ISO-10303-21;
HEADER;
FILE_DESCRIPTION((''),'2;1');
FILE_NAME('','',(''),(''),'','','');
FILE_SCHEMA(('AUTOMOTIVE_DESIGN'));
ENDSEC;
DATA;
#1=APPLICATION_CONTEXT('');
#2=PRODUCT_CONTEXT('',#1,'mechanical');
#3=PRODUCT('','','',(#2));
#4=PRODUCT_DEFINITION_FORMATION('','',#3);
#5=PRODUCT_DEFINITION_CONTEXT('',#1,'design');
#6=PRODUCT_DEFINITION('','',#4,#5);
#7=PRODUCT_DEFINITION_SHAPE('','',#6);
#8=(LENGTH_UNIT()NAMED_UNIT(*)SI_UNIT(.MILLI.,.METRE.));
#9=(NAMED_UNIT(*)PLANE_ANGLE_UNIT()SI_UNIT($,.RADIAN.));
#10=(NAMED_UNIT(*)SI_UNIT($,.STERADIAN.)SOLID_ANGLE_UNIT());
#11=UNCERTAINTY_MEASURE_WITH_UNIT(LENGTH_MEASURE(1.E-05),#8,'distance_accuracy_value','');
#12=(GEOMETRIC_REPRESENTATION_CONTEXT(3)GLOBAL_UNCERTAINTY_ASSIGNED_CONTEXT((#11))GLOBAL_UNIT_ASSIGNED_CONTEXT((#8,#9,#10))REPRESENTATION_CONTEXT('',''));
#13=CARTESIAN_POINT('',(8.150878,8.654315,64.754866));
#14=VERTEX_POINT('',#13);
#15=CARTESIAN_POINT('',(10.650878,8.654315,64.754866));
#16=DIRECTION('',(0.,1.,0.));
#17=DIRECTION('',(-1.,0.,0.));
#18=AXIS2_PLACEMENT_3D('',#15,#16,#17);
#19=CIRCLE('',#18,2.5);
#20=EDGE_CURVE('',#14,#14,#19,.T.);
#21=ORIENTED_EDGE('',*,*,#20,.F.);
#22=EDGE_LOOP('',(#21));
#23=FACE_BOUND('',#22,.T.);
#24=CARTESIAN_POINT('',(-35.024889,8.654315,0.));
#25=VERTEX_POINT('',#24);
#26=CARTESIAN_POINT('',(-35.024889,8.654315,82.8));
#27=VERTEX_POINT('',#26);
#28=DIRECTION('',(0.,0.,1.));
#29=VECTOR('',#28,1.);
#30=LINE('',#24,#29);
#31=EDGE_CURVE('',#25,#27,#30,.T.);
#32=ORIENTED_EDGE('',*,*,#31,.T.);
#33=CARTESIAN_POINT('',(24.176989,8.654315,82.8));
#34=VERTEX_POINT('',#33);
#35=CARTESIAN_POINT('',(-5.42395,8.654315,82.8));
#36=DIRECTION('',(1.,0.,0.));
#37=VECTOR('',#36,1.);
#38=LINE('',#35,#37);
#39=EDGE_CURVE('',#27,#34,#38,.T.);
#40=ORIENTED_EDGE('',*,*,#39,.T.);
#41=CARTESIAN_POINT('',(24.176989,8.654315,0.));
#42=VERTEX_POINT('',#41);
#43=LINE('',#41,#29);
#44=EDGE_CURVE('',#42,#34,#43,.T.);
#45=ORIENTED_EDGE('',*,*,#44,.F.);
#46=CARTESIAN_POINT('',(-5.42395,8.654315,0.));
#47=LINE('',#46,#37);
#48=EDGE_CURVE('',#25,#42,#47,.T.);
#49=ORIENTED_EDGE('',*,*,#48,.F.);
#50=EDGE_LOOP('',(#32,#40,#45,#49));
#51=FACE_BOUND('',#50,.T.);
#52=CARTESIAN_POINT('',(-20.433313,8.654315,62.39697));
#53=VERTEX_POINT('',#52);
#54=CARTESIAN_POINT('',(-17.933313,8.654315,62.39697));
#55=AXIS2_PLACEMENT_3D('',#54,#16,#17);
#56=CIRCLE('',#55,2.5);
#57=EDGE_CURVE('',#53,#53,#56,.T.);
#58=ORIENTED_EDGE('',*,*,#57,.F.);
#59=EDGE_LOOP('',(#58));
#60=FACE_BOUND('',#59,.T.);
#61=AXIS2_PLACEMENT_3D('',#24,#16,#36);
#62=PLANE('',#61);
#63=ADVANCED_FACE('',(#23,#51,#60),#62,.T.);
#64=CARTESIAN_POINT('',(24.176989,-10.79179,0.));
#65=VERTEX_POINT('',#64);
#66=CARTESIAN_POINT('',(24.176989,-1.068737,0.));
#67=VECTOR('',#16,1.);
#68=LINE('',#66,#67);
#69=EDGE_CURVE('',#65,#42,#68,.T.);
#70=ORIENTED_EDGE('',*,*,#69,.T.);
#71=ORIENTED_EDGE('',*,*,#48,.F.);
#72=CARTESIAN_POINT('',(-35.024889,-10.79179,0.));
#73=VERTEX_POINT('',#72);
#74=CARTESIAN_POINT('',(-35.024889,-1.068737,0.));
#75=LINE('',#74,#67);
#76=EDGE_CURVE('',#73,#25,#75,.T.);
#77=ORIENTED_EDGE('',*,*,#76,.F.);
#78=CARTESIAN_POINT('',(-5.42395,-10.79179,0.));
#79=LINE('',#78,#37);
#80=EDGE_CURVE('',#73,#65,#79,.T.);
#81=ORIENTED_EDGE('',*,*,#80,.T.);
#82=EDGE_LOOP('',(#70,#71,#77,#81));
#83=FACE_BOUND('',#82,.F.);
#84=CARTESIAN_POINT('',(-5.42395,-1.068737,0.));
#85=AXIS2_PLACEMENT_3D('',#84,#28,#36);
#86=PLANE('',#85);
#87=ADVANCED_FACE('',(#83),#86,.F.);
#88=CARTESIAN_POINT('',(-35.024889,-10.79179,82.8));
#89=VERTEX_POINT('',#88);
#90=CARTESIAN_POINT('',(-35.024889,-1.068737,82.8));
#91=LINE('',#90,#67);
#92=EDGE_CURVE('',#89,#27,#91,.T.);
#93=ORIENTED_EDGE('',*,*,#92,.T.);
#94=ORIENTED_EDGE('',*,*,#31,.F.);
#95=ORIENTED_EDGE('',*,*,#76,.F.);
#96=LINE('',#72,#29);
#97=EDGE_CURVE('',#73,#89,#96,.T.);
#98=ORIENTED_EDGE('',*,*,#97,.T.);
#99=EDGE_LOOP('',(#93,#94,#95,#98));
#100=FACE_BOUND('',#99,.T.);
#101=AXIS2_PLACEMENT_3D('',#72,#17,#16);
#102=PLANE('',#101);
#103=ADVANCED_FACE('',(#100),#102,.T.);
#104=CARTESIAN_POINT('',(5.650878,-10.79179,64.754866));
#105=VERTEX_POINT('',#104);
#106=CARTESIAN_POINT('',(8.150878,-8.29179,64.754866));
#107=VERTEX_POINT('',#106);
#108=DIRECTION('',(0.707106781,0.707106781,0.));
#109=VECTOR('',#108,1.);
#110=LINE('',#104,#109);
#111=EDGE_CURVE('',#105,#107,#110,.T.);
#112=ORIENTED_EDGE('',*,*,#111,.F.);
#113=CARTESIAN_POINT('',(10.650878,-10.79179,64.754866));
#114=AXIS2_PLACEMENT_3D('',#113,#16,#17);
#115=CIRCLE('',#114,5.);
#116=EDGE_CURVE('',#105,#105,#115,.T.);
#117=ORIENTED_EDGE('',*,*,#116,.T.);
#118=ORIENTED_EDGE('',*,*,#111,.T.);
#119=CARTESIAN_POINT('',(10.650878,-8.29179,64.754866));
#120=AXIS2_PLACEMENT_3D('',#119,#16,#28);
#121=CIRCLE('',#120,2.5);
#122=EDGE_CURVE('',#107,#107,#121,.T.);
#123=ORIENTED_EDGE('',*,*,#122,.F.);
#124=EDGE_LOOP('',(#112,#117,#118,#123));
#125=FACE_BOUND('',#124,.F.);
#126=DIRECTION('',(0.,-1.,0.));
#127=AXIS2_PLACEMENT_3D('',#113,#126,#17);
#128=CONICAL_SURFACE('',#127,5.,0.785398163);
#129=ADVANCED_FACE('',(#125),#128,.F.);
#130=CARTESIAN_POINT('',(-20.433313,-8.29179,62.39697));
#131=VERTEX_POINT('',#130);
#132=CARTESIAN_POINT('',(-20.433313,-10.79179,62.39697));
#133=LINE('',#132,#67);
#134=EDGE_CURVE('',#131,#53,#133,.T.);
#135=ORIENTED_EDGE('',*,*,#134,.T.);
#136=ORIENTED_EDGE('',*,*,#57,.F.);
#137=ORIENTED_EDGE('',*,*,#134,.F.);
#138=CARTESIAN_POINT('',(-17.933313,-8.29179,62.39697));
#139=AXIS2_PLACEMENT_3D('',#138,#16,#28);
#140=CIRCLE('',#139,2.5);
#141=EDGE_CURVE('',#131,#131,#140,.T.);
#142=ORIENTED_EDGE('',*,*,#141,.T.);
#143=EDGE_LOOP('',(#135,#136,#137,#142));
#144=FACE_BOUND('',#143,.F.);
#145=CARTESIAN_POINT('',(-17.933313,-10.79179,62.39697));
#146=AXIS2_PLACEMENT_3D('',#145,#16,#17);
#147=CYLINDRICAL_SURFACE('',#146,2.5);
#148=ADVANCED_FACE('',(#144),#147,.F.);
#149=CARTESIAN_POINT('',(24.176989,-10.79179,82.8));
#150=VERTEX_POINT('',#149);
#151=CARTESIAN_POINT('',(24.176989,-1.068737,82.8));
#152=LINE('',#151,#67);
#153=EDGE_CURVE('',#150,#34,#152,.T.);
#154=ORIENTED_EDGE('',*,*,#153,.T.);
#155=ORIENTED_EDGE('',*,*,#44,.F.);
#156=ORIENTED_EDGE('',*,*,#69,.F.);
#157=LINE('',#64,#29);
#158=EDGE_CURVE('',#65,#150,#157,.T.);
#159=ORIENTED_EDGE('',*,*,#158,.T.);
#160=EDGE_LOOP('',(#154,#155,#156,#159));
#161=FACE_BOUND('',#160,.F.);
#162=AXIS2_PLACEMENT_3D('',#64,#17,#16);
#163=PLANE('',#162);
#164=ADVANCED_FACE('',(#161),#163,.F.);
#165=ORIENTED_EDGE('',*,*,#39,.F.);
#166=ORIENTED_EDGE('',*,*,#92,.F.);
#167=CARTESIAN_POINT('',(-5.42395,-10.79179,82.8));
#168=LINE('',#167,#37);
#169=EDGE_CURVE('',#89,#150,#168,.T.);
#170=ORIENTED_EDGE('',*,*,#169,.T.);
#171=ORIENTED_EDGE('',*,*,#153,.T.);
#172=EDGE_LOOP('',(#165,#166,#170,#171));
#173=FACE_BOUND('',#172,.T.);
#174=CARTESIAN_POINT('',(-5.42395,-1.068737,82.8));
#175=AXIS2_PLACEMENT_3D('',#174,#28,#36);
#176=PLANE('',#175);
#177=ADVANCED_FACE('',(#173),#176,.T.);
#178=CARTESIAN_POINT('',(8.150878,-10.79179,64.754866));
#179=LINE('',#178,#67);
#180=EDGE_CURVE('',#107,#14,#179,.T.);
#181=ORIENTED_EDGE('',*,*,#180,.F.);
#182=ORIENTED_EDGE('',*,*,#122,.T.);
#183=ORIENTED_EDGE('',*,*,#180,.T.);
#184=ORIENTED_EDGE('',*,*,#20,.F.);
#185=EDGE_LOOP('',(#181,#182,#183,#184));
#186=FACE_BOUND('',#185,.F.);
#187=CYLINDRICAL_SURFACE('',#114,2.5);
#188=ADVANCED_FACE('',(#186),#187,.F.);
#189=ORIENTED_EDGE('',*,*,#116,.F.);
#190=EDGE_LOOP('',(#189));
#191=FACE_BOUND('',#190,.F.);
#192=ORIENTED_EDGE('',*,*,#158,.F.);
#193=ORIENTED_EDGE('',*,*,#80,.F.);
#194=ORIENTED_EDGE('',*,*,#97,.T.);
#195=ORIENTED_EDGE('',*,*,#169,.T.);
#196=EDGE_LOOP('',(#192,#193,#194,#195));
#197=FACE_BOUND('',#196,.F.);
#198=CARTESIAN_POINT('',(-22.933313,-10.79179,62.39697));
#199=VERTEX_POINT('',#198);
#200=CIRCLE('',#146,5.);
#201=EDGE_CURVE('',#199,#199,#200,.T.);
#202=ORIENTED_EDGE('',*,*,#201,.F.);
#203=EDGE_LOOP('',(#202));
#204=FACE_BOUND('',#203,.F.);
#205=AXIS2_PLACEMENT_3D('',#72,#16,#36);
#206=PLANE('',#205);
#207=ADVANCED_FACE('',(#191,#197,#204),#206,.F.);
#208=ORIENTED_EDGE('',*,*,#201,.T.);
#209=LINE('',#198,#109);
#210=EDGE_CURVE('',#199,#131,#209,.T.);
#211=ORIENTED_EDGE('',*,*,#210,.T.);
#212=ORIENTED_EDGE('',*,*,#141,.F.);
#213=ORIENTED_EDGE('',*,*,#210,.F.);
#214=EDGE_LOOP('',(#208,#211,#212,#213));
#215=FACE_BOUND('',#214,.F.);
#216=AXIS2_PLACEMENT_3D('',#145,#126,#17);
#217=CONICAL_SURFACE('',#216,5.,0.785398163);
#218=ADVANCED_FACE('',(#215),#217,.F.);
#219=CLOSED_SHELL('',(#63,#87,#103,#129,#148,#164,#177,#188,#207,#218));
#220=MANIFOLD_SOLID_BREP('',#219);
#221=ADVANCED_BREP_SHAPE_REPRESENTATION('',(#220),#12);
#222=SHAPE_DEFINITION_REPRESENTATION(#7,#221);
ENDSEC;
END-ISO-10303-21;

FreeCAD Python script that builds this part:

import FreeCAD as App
import Part
import Sketcher
Q = App.Units.Quantity


def add_polygon(sketch, points):
    """Adds a closed chain of lines whose ends are joined by coincident constraints."""
    first, n = sketch.GeometryCount, len(points)
    for a, b in zip(points, points[1:] + points[:1]):
        sketch.addGeometry(Part.LineSegment(App.Vector(*a, 0), App.Vector(*b, 0)), False)
    for i in range(n):
        sketch.addConstraint(Sketcher.Constraint("Coincident", first + i, 2, first + (i + 1) % n, 1))

doc = App.newDocument("Part")
body = doc.addObject("PartDesign::Body", "Body")

sketch1 = doc.addObject("Sketcher::SketchObject", "Sketch")
body.addObject(sketch1)
sketch1.AttachmentSupport = (doc.XY_Plane, [""])
sketch1.MapMode = "FlatFace"
add_polygon(sketch1, [(-35.024889, 8.654315), (-35.024889, -10.79179), (24.176989, -10.79179), (24.176989, 8.654315)])
sketch1.addConstraint(Sketcher.Constraint("Vertical", 0))
sketch1.addConstraint(Sketcher.Constraint("Horizontal", 1))
sketch1.addConstraint(Sketcher.Constraint("Vertical", 2))
sketch1.addConstraint(Sketcher.Constraint("Horizontal", 3))
sketch1.addConstraint(Sketcher.Constraint("DistanceX", 1, 1, 1, 2, Q("59.201878 mm")))
sketch1.addConstraint(Sketcher.Constraint("DistanceY", 0, 2, 0, 1, Q("19.446105 mm")))
sketch1.addConstraint(Sketcher.Constraint("DistanceX", 0, 2, -1, 1, Q("35.024889 mm")))
sketch1.addConstraint(Sketcher.Constraint("DistanceY", 0, 2, -1, 1, Q("10.79179 mm")))
pad1 = doc.addObject("PartDesign::Pad", "Pad")
body.addObject(pad1)
pad1.Profile = sketch1
pad1.Length = 82.8

sketch2 = doc.addObject("Sketcher::SketchObject", "Sketch001")
body.addObject(sketch2)
sketch2.AttachmentSupport = (doc.XZ_Plane, [""])
sketch2.MapMode = "FlatFace"
sketch2.AttachmentOffset = App.Placement(App.Vector(0, 0, 10.79179), App.Rotation())
sketch2.addGeometry(Part.Circle(App.Vector(-17.933313, 62.39697, 0), App.Vector(0, 0, 1), 2.5), False)
sketch2.addGeometry(Part.Circle(App.Vector(10.650878, 64.754866, 0), App.Vector(0, 0, 1), 2.5), False)
sketch2.addConstraint(Sketcher.Constraint("Equal", 0, 1))
sketch2.addConstraint(Sketcher.Constraint("Diameter", 0, Q("5 mm")))
sketch2.addConstraint(Sketcher.Constraint("DistanceY", -1, 1, 0, 3, Q("62.39697 mm")))
sketch2.addConstraint(Sketcher.Constraint("DistanceX", 0, 3, 1, 3, Q("28.584191 mm")))
sketch2.addConstraint(Sketcher.Constraint("DistanceX", 0, 3, -1, 1, Q("17.933313 mm")))
sketch2.addConstraint(Sketcher.Constraint("DistanceY", -1, 1, 1, 3, Q("64.754866 mm")))
doc.recompute()
hole = doc.addObject("PartDesign::Hole", "Hole")
body.addObject(hole)
hole.Profile = sketch2
hole.ThreadType = "None"
hole.Diameter = 5
hole.DepthType = "ThroughAll"
hole.HoleCutType = "Countersink"
hole.HoleCutDiameter = 10
hole.HoleCutCountersinkAngle = 90

doc.recompute()
